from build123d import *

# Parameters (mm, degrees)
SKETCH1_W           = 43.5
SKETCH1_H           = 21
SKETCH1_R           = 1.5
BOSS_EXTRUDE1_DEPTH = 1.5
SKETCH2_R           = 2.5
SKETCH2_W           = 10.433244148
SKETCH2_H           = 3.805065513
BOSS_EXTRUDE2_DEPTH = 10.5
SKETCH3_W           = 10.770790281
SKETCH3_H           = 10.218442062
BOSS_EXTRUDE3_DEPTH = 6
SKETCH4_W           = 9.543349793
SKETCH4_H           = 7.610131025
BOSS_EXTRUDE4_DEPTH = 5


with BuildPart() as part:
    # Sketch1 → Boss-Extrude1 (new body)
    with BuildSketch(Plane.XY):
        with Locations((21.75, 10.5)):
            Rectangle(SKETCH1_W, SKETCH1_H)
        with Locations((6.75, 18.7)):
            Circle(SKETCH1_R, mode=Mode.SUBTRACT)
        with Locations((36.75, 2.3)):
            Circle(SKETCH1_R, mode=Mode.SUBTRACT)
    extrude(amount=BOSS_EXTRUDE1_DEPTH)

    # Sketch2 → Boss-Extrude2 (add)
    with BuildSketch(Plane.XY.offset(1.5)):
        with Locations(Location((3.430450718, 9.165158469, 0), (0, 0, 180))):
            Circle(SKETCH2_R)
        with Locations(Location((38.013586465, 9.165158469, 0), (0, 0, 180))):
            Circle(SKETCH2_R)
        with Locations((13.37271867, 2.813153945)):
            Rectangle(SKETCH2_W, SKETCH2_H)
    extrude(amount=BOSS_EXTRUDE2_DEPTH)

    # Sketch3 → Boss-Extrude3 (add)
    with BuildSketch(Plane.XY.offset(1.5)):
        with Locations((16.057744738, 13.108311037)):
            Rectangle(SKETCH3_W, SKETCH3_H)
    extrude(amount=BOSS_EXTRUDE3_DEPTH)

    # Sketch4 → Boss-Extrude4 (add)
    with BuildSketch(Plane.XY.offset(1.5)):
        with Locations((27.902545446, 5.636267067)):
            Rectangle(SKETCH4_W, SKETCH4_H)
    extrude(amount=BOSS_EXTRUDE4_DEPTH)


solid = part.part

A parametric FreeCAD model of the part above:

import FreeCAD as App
import Part
import Sketcher

doc = App.newDocument("Part")
body = doc.addObject("PartDesign::Body", "Body")

sketch1 = body.newObject("Sketcher::SketchObject", "Sketch")
sketch1.AttachmentSupport = (doc.getObject("XY_Plane"), [""])
sketch1.MapMode = "FlatFace"
sketch1.addGeometry(Part.LineSegment(App.Vector(0, 21, 0), App.Vector(0, 0, 0)), False)
sketch1.addGeometry(Part.LineSegment(App.Vector(0, 0, 0), App.Vector(43.5, 0, 0)), False)
sketch1.addGeometry(Part.LineSegment(App.Vector(43.5, 0, 0), App.Vector(43.5, 21, 0)), False)
sketch1.addGeometry(Part.LineSegment(App.Vector(43.5, 21, 0), App.Vector(0, 21, 0)), False)
sketch1.addGeometry(Part.Circle(App.Vector(36.8, 2.3, 0), App.Vector(0, 0, 1), 1.5), False)
sketch1.addGeometry(Part.Circle(App.Vector(6.8, 18.7, 0), App.Vector(0, 0, 1), 1.5), False)
sketch1.addConstraint(Sketcher.Constraint("Coincident", 0, 2, 1, 1))
sketch1.addConstraint(Sketcher.Constraint("Coincident", 1, 2, 2, 1))
sketch1.addConstraint(Sketcher.Constraint("Coincident", 2, 2, 3, 1))
sketch1.addConstraint(Sketcher.Constraint("Coincident", 3, 2, 0, 1))
sketch1.addConstraint(Sketcher.Constraint("Vertical", 0))
sketch1.addConstraint(Sketcher.Constraint("Horizontal", 1))
sketch1.addConstraint(Sketcher.Constraint("Vertical", 2))
sketch1.addConstraint(Sketcher.Constraint("Horizontal", 3))
sketch1.addConstraint(Sketcher.Constraint("Coincident", 0, 2, -1, 1))
sketch1.addConstraint(Sketcher.Constraint("Equal", 4, 5))
sketch1.addConstraint(Sketcher.Constraint("Diameter", 4, 3.0))
sketch1.addConstraint(Sketcher.Constraint("DistanceY", 0, 2, 0, 1, 21.0))
sketch1.addConstraint(Sketcher.Constraint("DistanceX", 1, 1, 1, 2, 43.5))
sketch1.addConstraint(Sketcher.Constraint("DistanceX", 5, 3, 4, 3, 30.0))
sketch1.addConstraint(Sketcher.Constraint("DistanceY", -1, 1, 4, 3, 2.3))
sketch1.addConstraint(Sketcher.Constraint("DistanceY", -1, 1, 5, 3, 18.7))
sketch1.addConstraint(Sketcher.Constraint("DistanceX", -1, 1, 4, 3, 36.75))
pad1 = body.newObject("PartDesign::Pad", "Pad")
pad1.Profile = sketch1
pad1.Length = 1.5

sketch2 = body.newObject("Sketcher::SketchObject", "Sketch001")
sketch2.AttachmentSupport = (doc.getObject("XY_Plane"), [""])
sketch2.MapMode = "FlatFace"
sketch2.AttachmentOffset = App.Placement(App.Vector(0, 0, 1.5), App.Rotation())
sketch2.addGeometry(Part.Circle(App.Vector(3.4, 9.2, 0), App.Vector(0, 0, 1), 2.5), False)
sketch2.addGeometry(Part.Circle(App.Vector(38, 9.2, 0), App.Vector(0, 0, 1), 2.5), False)
sketch2.addGeometry(Part.LineSegment(App.Vector(8.2, 4.7, 0), App.Vector(8.2, 0.9, 0)), False)
sketch2.addGeometry(Part.LineSegment(App.Vector(8.2, 0.9, 0), App.Vector(18.6, 0.9, 0)), False)
sketch2.addGeometry(Part.LineSegment(App.Vector(18.6, 0.9, 0), App.Vector(18.6, 4.7, 0)), False)
sketch2.addGeometry(Part.LineSegment(App.Vector(18.6, 4.7, 0), App.Vector(8.2, 4.7, 0)), False)
sketch2.addConstraint(Sketcher.Constraint("Coincident", 2, 2, 3, 1))
sketch2.addConstraint(Sketcher.Constraint("Coincident", 3, 2, 4, 1))
sketch2.addConstraint(Sketcher.Constraint("Coincident", 4, 2, 5, 1))
sketch2.addConstraint(Sketcher.Constraint("Coincident", 5, 2, 2, 1))
sketch2.addConstraint(Sketcher.Constraint("Vertical", 2))
sketch2.addConstraint(Sketcher.Constraint("Horizontal", 3))
sketch2.addConstraint(Sketcher.Constraint("Vertical", 4))
sketch2.addConstraint(Sketcher.Constraint("Horizontal", 5))
sketch2.addConstraint(Sketcher.Constraint("Equal", 0, 1))
sketch2.addConstraint(Sketcher.Constraint("Horizontal", 0, 3, 1, 3))
sketch2.addConstraint(Sketcher.Constraint("Diameter", 0, 5.0))
sketch2.addConstraint(Sketcher.Constraint("DistanceX", 3, 1, 3, 2, 10.433244))
sketch2.addConstraint(Sketcher.Constraint("DistanceY", 2, 2, 2, 1, 3.805066))
sketch2.addConstraint(Sketcher.Constraint("DistanceX", -1, 1, 0, 3, 3.430451))
sketch2.addConstraint(Sketcher.Constraint("DistanceY", -1, 1, 0, 3, 9.165158))
sketch2.addConstraint(Sketcher.Constraint("DistanceY", -1, 1, 2, 2, 0.910621))
sketch2.addConstraint(Sketcher.Constraint("DistanceX", -1, 1, 3, 2, 18.589341))
sketch2.addConstraint(Sketcher.Constraint("DistanceX", 2, 2, 1, 3, 29.85749))
pad2 = body.newObject("PartDesign::Pad", "Pad001")
pad2.Profile = sketch2
pad2.Length = 10.5

sketch3 = body.newObject("Sketcher::SketchObject", "Sketch002")
sketch3.AttachmentSupport = (doc.getObject("XY_Plane"), [""])
sketch3.MapMode = "FlatFace"
sketch3.AttachmentOffset = App.Placement(App.Vector(0, 0, 1.5), App.Rotation())
sketch3.addGeometry(Part.LineSegment(App.Vector(11, 18, 0), App.Vector(11, 8, 0)), False)
sketch3.addGeometry(Part.LineSegment(App.Vector(11, 8, 0), App.Vector(21, 8, 0)), False)
sketch3.addGeometry(Part.LineSegment(App.Vector(21, 8, 0), App.Vector(21, 18, 0)), False)
sketch3.addGeometry(Part.LineSegment(App.Vector(21, 18, 0), App.Vector(11, 18, 0)), False)
sketch3.addConstraint(Sketcher.Constraint("Coincident", 0, 2, 1, 1))
sketch3.addConstraint(Sketcher.Constraint("Coincident", 1, 2, 2, 1))
sketch3.addConstraint(Sketcher.Constraint("Coincident", 2, 2, 3, 1))
sketch3.addConstraint(Sketcher.Constraint("Coincident", 3, 2, 0, 1))
sketch3.addConstraint(Sketcher.Constraint("Vertical", 0))
sketch3.addConstraint(Sketcher.Constraint("Horizontal", 1))
sketch3.addConstraint(Sketcher.Constraint("Vertical", 2))
sketch3.addConstraint(Sketcher.Constraint("Horizontal", 3))
sketch3.addConstraint(Sketcher.Constraint("DistanceX", 1, 1, 1, 2, 10.77079))
sketch3.addConstraint(Sketcher.Constraint("DistanceY", 0, 2, 0, 1, 10.218442))
sketch3.addConstraint(Sketcher.Constraint("DistanceX", -1, 1, 0, 2, 10.67235))
sketch3.addConstraint(Sketcher.Constraint("DistanceY", -1, 1, 0, 2, 7.99909))
pad3 = body.newObject("PartDesign::Pad", "Pad002")
pad3.Profile = sketch3
pad3.Length = 6

sketch4 = body.newObject("Sketcher::SketchObject", "Sketch003")
sketch4.AttachmentSupport = (doc.getObject("XY_Plane"), [""])
sketch4.MapMode = "FlatFace"
sketch4.AttachmentOffset = App.Placement(App.Vector(0, 0, 1.5), App.Rotation())
sketch4.addGeometry(Part.LineSegment(App.Vector(23, 9, 0), App.Vector(23, 2, 0)), False)
sketch4.addGeometry(Part.LineSegment(App.Vector(23, 2, 0), App.Vector(33, 2, 0)), False)
sketch4.addGeometry(Part.LineSegment(App.Vector(33, 2, 0), App.Vector(33, 9, 0)), False)
sketch4.addGeometry(Part.LineSegment(App.Vector(33, 9, 0), App.Vector(23, 9, 0)), False)
sketch4.addConstraint(Sketcher.Constraint("Coincident", 0, 2, 1, 1))
sketch4.addConstraint(Sketcher.Constraint("Coincident", 1, 2, 2, 1))
sketch4.addConstraint(Sketcher.Constraint("Coincident", 2, 2, 3, 1))
sketch4.addConstraint(Sketcher.Constraint("Coincident", 3, 2, 0, 1))
sketch4.addConstraint(Sketcher.Constraint("Vertical", 0))
sketch4.addConstraint(Sketcher.Constraint("Horizontal", 1))
sketch4.addConstraint(Sketcher.Constraint("Vertical", 2))
sketch4.addConstraint(Sketcher.Constraint("Horizontal", 3))
sketch4.addConstraint(Sketcher.Constraint("DistanceX", 1, 1, 1, 2, 9.54335))
sketch4.addConstraint(Sketcher.Constraint("DistanceY", 0, 2, 0, 1, 7.610131))
sketch4.addConstraint(Sketcher.Constraint("DistanceY", -1, 1, 0, 2, 1.831202))
sketch4.addConstraint(Sketcher.Constraint("DistanceX", -1, 1, 0, 2, 23.130871))
pad4 = body.newObject("PartDesign::Pad", "Pad003")
pad4.Profile = sketch4
pad4.Length = 5

doc.recompute()
